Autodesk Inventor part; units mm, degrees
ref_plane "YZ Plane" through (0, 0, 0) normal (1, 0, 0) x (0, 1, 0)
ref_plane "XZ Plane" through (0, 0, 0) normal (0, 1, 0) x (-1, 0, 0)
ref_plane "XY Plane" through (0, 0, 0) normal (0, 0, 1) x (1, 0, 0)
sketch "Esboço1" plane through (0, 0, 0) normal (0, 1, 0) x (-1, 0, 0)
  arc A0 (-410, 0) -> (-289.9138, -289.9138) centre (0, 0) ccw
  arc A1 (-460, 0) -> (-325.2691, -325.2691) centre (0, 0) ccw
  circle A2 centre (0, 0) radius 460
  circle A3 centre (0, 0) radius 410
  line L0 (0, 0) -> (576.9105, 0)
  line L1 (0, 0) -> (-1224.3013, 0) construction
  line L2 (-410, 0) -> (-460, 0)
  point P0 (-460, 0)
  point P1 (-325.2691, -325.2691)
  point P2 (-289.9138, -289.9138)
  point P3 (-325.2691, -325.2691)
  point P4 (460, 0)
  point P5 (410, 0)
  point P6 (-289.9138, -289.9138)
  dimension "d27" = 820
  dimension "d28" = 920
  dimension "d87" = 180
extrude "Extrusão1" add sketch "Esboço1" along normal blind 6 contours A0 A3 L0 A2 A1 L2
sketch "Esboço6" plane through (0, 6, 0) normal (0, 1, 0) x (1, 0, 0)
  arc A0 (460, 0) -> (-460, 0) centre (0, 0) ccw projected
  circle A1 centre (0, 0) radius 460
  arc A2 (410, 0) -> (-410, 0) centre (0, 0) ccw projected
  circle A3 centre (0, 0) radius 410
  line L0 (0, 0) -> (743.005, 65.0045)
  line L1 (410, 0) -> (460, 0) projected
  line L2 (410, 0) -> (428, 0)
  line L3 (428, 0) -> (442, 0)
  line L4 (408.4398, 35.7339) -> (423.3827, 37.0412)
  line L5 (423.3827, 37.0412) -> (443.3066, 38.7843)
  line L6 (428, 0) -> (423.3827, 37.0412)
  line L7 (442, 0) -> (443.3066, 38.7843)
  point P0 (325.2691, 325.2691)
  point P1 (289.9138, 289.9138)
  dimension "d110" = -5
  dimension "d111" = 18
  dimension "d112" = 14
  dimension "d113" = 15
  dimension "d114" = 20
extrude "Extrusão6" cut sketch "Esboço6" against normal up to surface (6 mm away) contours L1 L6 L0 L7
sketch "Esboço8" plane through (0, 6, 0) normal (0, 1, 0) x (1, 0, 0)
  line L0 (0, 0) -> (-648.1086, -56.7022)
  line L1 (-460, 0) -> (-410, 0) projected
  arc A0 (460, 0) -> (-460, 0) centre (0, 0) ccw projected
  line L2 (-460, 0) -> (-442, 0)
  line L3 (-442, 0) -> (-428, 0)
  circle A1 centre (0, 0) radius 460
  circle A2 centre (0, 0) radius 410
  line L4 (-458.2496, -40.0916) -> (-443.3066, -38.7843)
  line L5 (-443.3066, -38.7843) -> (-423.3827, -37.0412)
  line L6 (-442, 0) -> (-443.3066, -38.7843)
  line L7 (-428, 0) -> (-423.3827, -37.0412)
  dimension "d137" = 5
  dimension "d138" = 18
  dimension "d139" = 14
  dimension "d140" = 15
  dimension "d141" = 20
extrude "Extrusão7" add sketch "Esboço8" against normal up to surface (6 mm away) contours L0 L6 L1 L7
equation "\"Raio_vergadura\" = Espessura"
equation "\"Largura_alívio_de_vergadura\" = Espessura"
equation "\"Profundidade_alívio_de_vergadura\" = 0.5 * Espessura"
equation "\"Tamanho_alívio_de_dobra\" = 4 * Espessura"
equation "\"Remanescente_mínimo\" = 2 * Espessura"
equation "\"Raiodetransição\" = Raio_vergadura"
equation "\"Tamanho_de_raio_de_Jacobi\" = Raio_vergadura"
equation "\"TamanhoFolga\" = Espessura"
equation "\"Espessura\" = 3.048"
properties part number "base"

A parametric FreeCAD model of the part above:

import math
import FreeCAD as App
import Part
import Sketcher
from FreeCAD import Vector
Q = App.Units.Quantity

doc = App.newDocument("Part")
body = doc.addObject("PartDesign::Body", "Body")

# Sketch on XZ plane
sketch1 = body.newObject("Sketcher::SketchObject", "Sketch")
sketch1.AttachmentSupport = (doc.getObject("XZ_Plane"), [""])
sketch1.MapMode = "FlatFace"
sketch1.addGeometry(Part.ArcOfCircle(Part.Circle(Vector(0, 0, 0), Vector(0, 0, 1), 410), math.radians(-45), math.radians(0)), False)
sketch1.addGeometry(Part.LineSegment(Vector(410, 0, 0), Vector(460, 0, 0)), False)
sketch1.addGeometry(Part.ArcOfCircle(Part.Circle(Vector(0, 0, 0), Vector(0, 0, 1), 460), math.radians(-45), math.radians(0)), False)
sketch1.addGeometry(Part.ArcOfCircle(Part.Circle(Vector(0, 0, 0), Vector(0, 0, 1), 460), math.radians(180), math.radians(315)), False)
sketch1.addGeometry(Part.LineSegment(Vector(-460, 0, 0), Vector(-410, 0, 0)), False)
sketch1.addGeometry(Part.ArcOfCircle(Part.Circle(Vector(0, 0, 0), Vector(0, 0, 1), 410), math.radians(180), math.radians(315)), False)
sketch1.addConstraint(Sketcher.Constraint("Coincident", 0, 2, 1, 1))
sketch1.addConstraint(Sketcher.Constraint("Coincident", 1, 2, 2, 2))
sketch1.addConstraint(Sketcher.Constraint("Tangent", 2, 1, 3, 2))
sketch1.addConstraint(Sketcher.Constraint("Coincident", 3, 1, 4, 1))
sketch1.addConstraint(Sketcher.Constraint("Coincident", 4, 2, 5, 1))
sketch1.addConstraint(Sketcher.Constraint("Tangent", 5, 2, 0, 1))
sketch1.addConstraint(Sketcher.Constraint("Horizontal", 1))
sketch1.addConstraint(Sketcher.Constraint("Horizontal", 4))
sketch1.addConstraint(Sketcher.Constraint("Coincident", 0, 3, -1, 1))
sketch1.addConstraint(Sketcher.Constraint("Coincident", 2, 3, -1, 1))
sketch1.addConstraint(Sketcher.Constraint("Equal", 2, 3))
sketch1.addConstraint(Sketcher.Constraint("Equal", 0, 5))
sketch1.addConstraint(Sketcher.Constraint("PointOnObject", 1, 2, -1))
sketch1.addConstraint(Sketcher.Constraint("PointOnObject", 4, 2, -1))
sketch1.addConstraint(Sketcher.Constraint("Radius", 0, Q("410 mm")))
sketch1.addConstraint(Sketcher.Constraint("Radius", 2, Q("460 mm")))
sketch1.addConstraint(Sketcher.Constraint("DistanceX", -1, 1, 2, 1, Q("325.269 mm")))
sketch1.addConstraint(Sketcher.Constraint("DistanceX", -1, 1, 5, 2, Q("289.9138 mm")))
pad1 = body.newObject("PartDesign::Pad", "Pad")
pad1.Profile = sketch1
pad1.Length = 6
pad1.Reversed = True

# Sketch on XZ plane
sketch2 = body.newObject("Sketcher::SketchObject", "Sketch001")
sketch2.AttachmentSupport = (doc.getObject("XZ_Plane"), [""])
sketch2.MapMode = "FlatFace"
sketch2.AttachmentOffset = App.Placement(Vector(0, 0, -6), App.Rotation())
sketch2.addGeometry(Part.LineSegment(Vector(428, 0, 0), Vector(442, 0, 0)), False)
sketch2.addGeometry(Part.LineSegment(Vector(442, 0, 0), Vector(443, -39, 0)), False)
sketch2.addGeometry(Part.LineSegment(Vector(443, -39, 0), Vector(423, -37, 0)), False)
sketch2.addGeometry(Part.LineSegment(Vector(423, -37, 0), Vector(428, 0, 0)), False)
sketch2.addConstraint(Sketcher.Constraint("Coincident", 0, 2, 1, 1))
sketch2.addConstraint(Sketcher.Constraint("Coincident", 1, 2, 2, 1))
sketch2.addConstraint(Sketcher.Constraint("Coincident", 2, 2, 3, 1))
sketch2.addConstraint(Sketcher.Constraint("Coincident", 3, 2, 0, 1))
sketch2.addConstraint(Sketcher.Constraint("Horizontal", 0))
sketch2.addConstraint(Sketcher.Constraint("PointOnObject", 0, 2, -1))
sketch2.addConstraint(Sketcher.Constraint("DistanceX", 0, 1, 0, 2, Q("14 mm")))
sketch2.addConstraint(Sketcher.Constraint("Distance", 2, Q("20 mm")))
sketch2.addConstraint(Sketcher.Constraint("Angle", 2, Q("175 deg")))
sketch2.addConstraint(Sketcher.Constraint("DistanceX", -1, 1, 0, 2, Q("442 mm")))
sketch2.addConstraint(Sketcher.Constraint("Angle", 1, Q("-88.0705 deg")))
sketch2.addConstraint(Sketcher.Constraint("Distance", 1, Q("38.8063 mm")))
pocket1 = body.newObject("PartDesign::Pocket", "Pocket")
pocket1.Profile = sketch2
pocket1.Length = 6
pocket1.Reversed = True

# Sketch on XZ plane
sketch3 = body.newObject("Sketcher::SketchObject", "Sketch002")
sketch3.AttachmentSupport = (doc.getObject("XZ_Plane"), [""])
sketch3.MapMode = "FlatFace"
sketch3.AttachmentOffset = App.Placement(Vector(0, 0, -6), App.Rotation())
sketch3.addGeometry(Part.LineSegment(Vector(-443, 39, 0), Vector(-423, 37, 0)), False)
sketch3.addGeometry(Part.LineSegment(Vector(-423, 37, 0), Vector(-428, 0, 0)), False)
sketch3.addGeometry(Part.LineSegment(Vector(-428, 0, 0), Vector(-442, 0, 0)), False)
sketch3.addGeometry(Part.LineSegment(Vector(-442, 0, 0), Vector(-443, 39, 0)), False)
sketch3.addConstraint(Sketcher.Constraint("Coincident", 0, 2, 1, 1))
sketch3.addConstraint(Sketcher.Constraint("Coincident", 1, 2, 2, 1))
sketch3.addConstraint(Sketcher.Constraint("Coincident", 2, 2, 3, 1))
sketch3.addConstraint(Sketcher.Constraint("Coincident", 3, 2, 0, 1))
sketch3.addConstraint(Sketcher.Constraint("Horizontal", 2))
sketch3.addConstraint(Sketcher.Constraint("PointOnObject", 1, 2, -1))
sketch3.addConstraint(Sketcher.Constraint("DistanceX", 2, 2, 2, 1, Q("14 mm")))
sketch3.addConstraint(Sketcher.Constraint("Angle", 0, Q("-5 deg")))
sketch3.addConstraint(Sketcher.Constraint("Distance", 0, Q("20 mm")))
sketch3.addConstraint(Sketcher.Constraint("DistanceX", 1, 2, -1, 1, Q("428 mm")))
sketch3.addConstraint(Sketcher.Constraint("Angle", 3, Q("91.9295 deg")))
sketch3.addConstraint(Sketcher.Constraint("Distance", 1, Q("37.3279 mm")))
pad2 = body.newObject("PartDesign::Pad", "Pad001")
pad2.Profile = sketch3
pad2.Length = 6

doc.recompute()
